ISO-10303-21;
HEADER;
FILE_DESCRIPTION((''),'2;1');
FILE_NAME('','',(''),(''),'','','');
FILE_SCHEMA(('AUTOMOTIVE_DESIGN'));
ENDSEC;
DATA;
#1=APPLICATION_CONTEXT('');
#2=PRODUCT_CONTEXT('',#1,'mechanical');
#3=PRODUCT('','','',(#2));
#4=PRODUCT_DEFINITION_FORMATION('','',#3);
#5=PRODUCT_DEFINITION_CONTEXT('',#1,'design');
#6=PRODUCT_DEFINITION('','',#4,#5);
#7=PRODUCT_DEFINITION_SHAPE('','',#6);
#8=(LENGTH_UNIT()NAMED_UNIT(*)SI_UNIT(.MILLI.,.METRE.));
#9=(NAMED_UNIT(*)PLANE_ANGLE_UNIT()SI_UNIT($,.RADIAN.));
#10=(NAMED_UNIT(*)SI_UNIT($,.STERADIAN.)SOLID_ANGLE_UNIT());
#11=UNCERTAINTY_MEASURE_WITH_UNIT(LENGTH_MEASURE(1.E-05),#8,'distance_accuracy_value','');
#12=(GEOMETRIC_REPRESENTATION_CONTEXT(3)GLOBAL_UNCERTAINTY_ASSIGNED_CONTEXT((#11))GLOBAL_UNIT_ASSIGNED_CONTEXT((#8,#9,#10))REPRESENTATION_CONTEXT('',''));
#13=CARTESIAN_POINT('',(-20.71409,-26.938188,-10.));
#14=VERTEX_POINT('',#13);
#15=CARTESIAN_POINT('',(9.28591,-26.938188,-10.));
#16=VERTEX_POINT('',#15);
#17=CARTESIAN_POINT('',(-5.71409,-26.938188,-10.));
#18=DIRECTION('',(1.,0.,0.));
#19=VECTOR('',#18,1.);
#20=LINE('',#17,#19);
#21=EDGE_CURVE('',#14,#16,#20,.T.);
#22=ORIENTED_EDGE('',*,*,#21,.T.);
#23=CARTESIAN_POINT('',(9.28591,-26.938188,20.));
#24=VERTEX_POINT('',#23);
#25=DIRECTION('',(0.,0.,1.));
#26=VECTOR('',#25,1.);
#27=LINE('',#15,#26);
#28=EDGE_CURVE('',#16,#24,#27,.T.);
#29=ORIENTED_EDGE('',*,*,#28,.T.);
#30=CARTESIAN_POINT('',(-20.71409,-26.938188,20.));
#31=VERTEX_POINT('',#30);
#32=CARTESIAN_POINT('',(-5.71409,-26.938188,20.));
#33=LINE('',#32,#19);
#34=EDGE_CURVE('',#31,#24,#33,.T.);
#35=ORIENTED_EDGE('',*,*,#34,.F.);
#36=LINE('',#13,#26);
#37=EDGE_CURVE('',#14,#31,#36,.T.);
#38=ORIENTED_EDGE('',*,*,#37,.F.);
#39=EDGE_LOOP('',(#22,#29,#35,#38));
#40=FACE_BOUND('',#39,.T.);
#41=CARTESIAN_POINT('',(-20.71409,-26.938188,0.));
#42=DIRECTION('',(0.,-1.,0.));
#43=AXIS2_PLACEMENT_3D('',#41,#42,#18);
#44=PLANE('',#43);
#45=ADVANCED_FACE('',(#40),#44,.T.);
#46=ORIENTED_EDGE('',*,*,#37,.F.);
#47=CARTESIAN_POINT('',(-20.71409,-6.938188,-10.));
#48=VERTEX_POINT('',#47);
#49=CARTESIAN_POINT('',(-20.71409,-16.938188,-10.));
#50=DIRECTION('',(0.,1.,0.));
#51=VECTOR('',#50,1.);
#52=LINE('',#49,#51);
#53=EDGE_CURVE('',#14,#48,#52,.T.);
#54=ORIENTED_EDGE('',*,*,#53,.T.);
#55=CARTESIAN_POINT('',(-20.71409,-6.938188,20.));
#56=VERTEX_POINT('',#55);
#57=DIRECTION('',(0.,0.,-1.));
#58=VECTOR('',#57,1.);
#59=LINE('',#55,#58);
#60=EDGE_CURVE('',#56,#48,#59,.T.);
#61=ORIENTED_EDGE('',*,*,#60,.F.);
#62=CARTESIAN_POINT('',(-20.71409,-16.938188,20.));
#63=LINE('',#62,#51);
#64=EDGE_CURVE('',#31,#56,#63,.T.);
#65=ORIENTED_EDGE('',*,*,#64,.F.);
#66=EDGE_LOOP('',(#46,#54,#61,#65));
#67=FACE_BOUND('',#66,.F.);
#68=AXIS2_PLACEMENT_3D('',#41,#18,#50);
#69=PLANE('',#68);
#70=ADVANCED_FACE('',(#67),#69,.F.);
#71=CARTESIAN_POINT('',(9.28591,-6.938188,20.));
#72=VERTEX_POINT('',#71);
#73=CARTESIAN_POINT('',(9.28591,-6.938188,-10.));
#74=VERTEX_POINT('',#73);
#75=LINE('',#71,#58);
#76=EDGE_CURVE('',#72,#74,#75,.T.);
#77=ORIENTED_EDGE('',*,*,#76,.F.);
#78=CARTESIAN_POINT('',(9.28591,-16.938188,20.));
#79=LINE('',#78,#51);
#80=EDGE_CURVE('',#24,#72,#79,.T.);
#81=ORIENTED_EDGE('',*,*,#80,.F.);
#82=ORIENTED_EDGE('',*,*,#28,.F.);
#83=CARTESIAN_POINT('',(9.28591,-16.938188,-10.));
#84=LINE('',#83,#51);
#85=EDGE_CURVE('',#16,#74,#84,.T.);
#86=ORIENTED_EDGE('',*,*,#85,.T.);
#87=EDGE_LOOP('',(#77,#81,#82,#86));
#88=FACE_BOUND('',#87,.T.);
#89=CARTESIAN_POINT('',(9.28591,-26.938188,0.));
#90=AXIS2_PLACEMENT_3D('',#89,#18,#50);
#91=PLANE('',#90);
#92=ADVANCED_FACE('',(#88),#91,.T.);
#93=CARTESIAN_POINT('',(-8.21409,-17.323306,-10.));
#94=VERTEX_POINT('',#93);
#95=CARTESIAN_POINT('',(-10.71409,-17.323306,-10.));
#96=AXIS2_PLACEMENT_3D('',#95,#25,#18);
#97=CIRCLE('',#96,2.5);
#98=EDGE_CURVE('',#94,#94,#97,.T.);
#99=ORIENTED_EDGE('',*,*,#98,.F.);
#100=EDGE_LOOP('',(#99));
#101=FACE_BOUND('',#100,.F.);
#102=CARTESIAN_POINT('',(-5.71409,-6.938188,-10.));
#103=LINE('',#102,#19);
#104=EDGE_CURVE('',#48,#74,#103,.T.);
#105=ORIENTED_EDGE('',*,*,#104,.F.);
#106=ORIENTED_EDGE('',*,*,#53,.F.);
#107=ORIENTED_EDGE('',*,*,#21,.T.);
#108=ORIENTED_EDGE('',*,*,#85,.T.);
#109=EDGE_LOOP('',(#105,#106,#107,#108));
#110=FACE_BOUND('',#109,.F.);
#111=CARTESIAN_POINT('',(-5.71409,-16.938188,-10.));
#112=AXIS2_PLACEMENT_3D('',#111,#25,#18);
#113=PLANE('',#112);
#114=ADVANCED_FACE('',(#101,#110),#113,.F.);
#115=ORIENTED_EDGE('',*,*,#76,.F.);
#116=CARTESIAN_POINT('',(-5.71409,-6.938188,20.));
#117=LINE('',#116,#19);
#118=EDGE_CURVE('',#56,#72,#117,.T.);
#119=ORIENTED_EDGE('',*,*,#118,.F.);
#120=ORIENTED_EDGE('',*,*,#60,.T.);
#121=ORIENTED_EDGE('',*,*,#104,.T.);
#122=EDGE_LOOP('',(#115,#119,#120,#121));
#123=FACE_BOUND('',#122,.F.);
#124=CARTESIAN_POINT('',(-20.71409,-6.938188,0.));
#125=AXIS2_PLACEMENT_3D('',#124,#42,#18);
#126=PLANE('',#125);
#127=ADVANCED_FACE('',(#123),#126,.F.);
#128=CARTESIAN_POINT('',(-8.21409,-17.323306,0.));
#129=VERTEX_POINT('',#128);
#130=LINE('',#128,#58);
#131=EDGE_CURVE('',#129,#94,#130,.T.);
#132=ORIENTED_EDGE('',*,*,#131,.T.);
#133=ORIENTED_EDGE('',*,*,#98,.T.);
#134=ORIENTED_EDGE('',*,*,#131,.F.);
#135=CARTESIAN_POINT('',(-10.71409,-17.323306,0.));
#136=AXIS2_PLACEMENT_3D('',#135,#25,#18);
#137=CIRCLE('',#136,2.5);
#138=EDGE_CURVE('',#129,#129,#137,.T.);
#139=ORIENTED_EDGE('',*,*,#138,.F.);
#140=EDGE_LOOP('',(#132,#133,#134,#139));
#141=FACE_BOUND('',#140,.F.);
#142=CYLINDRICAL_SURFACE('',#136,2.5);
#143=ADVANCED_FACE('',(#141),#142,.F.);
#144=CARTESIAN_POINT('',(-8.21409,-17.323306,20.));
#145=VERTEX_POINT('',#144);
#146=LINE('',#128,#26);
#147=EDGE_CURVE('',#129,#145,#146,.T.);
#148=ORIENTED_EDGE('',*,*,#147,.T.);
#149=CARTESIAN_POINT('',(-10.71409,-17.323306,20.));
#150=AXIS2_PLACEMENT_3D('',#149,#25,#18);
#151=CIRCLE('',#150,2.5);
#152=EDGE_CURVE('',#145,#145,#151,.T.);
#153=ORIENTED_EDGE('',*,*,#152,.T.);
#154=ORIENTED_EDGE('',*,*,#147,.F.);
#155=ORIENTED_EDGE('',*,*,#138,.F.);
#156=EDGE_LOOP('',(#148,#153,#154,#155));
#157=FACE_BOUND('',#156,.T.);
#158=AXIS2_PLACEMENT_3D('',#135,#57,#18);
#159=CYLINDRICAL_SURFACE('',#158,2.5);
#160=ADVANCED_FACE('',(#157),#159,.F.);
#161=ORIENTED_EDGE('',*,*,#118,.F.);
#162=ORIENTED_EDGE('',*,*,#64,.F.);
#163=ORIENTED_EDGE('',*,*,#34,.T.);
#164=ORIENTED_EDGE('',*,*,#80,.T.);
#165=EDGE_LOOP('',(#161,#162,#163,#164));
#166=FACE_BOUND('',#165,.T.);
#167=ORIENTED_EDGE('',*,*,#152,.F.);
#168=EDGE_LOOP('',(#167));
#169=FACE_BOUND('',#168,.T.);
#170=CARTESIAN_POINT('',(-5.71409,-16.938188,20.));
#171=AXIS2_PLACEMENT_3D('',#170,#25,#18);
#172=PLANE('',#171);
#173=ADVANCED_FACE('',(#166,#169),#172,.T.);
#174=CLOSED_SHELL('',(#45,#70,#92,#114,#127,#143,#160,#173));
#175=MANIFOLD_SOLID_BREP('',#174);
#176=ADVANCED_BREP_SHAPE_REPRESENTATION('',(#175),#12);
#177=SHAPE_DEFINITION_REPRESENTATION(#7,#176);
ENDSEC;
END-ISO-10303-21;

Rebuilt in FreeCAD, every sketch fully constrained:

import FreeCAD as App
import Part
import Sketcher
from FreeCAD import Vector
Q = App.Units.Quantity


def add_polygon(sketch, points):
    """Adds a closed chain of lines whose ends are joined by coincident constraints."""
    first, n = sketch.GeometryCount, len(points)
    for a, b in zip(points, points[1:] + points[:1]):
        sketch.addGeometry(Part.LineSegment(App.Vector(*a, 0), App.Vector(*b, 0)), False)
    for i in range(n):
        sketch.addConstraint(Sketcher.Constraint("Coincident", first + i, 2, first + (i + 1) % n, 1))

doc = App.newDocument("Part")
body = doc.addObject("PartDesign::Body", "Body")

# Sketch on XY plane
sketch1 = doc.addObject("Sketcher::SketchObject", "Sketch")
body.addObject(sketch1)
sketch1.AttachmentSupport = (doc.XY_Plane, [""])
sketch1.MapMode = "FlatFace"
add_polygon(sketch1, [(-20.7, -6.9), (-20.7, -26.9), (9.3, -26.9), (9.3, -6.9)])  # lines 0-3
sketch1.addGeometry(Part.Circle(Vector(-10.7, -17.3, 0), Vector(0, 0, 1), 2.5), False)  # 4
sketch1.addConstraint([
    Sketcher.Constraint("Vertical", 0),
    Sketcher.Constraint("Horizontal", 1),
    Sketcher.Constraint("Vertical", 2),
    Sketcher.Constraint("Horizontal", 3),
    Sketcher.Constraint("Diameter", 4, Q("5 mm")),
    Sketcher.Constraint("DistanceX", 1, 1, 1, 2, Q("30 mm")),
    Sketcher.Constraint("DistanceY", 0, 2, 0, 1, Q("20 mm")),
    Sketcher.Constraint("DistanceX", 0, 2, 4, 3, Q("10 mm")),
    Sketcher.Constraint("DistanceX", 4, 3, -1, 1, Q("10.71409 mm")),
    Sketcher.Constraint("DistanceY", 0, 2, -1, 1, Q("26.938188 mm")),
    Sketcher.Constraint("DistanceY", 4, 3, -1, 1, Q("17.323306 mm")),
])
pad1 = doc.addObject("PartDesign::Pad", "Pad")
body.addObject(pad1)
pad1.Profile = sketch1
pad1.Type = "TwoLengths"
pad1.Length = 20
pad1.Length2 = 10

doc.recompute()
